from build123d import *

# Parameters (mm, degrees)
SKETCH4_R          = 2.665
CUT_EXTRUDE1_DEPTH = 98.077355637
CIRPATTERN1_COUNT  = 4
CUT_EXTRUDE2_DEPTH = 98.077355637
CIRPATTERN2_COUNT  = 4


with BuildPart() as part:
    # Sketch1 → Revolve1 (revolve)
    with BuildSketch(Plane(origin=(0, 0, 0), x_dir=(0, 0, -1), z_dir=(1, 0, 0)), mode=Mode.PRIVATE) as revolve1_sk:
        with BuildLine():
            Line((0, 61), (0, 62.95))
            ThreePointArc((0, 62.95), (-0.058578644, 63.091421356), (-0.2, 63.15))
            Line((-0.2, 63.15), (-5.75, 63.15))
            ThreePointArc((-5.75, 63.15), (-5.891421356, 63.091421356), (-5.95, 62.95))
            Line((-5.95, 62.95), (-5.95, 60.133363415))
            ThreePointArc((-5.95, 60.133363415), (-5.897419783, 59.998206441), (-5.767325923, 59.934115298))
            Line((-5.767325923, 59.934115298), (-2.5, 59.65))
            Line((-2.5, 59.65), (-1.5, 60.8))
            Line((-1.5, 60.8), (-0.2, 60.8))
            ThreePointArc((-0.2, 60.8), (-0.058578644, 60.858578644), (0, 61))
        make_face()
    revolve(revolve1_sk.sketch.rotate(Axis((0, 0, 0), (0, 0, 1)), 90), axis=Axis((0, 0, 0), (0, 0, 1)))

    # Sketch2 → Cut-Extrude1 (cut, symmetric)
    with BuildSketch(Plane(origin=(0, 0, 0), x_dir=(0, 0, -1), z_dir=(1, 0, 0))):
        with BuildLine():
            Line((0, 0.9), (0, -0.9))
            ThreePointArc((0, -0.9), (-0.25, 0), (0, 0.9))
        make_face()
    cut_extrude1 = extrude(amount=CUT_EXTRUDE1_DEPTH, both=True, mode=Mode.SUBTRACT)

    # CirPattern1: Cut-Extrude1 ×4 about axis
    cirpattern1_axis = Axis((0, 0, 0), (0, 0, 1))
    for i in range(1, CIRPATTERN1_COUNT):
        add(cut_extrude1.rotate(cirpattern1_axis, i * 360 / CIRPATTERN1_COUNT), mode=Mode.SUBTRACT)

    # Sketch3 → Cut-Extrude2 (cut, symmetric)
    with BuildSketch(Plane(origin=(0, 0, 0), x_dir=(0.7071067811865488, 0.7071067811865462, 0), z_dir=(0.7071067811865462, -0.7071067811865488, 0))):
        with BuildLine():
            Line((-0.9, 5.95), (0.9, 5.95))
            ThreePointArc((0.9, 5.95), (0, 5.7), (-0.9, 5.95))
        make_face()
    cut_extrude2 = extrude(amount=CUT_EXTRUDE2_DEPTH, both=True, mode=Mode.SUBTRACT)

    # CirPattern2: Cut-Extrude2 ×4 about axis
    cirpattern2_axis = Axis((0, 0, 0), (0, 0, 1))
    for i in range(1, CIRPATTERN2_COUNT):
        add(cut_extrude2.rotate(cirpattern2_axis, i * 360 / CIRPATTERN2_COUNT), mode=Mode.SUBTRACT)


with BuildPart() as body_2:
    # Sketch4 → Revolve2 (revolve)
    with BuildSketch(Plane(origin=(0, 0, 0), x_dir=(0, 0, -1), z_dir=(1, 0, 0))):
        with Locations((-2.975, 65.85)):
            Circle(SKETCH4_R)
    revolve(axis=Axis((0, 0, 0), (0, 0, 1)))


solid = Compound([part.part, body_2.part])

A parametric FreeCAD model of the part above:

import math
import FreeCAD as App
import Part
import Sketcher

V = App.Vector

doc = App.newDocument("Part")
params = doc.addObject("Spreadsheet::Sheet", "Params")
for row, (alias, value) in enumerate([
    ("sketch1_radius", "0.2 mm"),
    ("sketch1_height", "1.3 mm"),
    ("sketch1_width", "1.95 mm"),
    ("sketch1_height2", "5.55 mm"),
    ("revolution_angle", "360 deg"),
    ("sketch2_width", "1.8 mm"),
    ("pocket1_length", "196.154711 mm"),
    ("sketch3_width", "1.8 mm"),
    ("pocket2_length", "196.154711 mm"),
    ("sketch4_diameter", "5.33 mm"),
    ("revolution2_angle", "360 deg"),
], start=1):
    params.set(f"A{row}", alias)
    params.set(f"B{row}", "=" + value)
    params.setAlias(f"B{row}", alias)

body = doc.addObject("PartDesign::Body", "Body")

# Sketch on YZ plane
sketch1 = doc.addObject("Sketcher::SketchObject", "Sketch")
body.addObject(sketch1)
sketch1.AttachmentSupport = (doc.YZ_Plane, [""])
sketch1.MapMode = "FlatFace"
sketch1.addGeometry(Part.LineSegment(V(61, 0, 0), V(62.95, 0, 0)), False)
sketch1.addGeometry(Part.ArcOfCircle(Part.Circle(V(62.95, 0.2, 0), V(0, 0, 1), 0.2), math.radians(-90), math.radians(0)), False)
sketch1.addGeometry(Part.LineSegment(V(63.15, 0.2, 0), V(63.15, 5.75, 0)), False)
sketch1.addGeometry(Part.ArcOfCircle(Part.Circle(V(62.95, 5.75, 0), V(0, 0, 1), 0.2), math.radians(0), math.radians(90)), False)
sketch1.addGeometry(Part.LineSegment(V(62.95, 5.95, 0), V(60.13, 5.95, 0)), False)
sketch1.addGeometry(Part.ArcOfCircle(Part.Circle(V(60.13, 5.75, 0), V(0, 0, 1), 0.2), math.radians(90), math.radians(175)), False)
sketch1.addGeometry(Part.LineSegment(V(59.93, 5.77, 0), V(59.65, 2.5, 0)), False)
sketch1.addGeometry(Part.LineSegment(V(59.65, 2.5, 0), V(60.8, 1.5, 0)), False)
sketch1.addGeometry(Part.LineSegment(V(60.8, 1.5, 0), V(60.8, 0.2, 0)), False)
sketch1.addGeometry(Part.ArcOfCircle(Part.Circle(V(61, 0.2, 0), V(0, 0, 1), 0.2), math.radians(-180), math.radians(-90)), False)
sketch1.addConstraint(Sketcher.Constraint("Tangent", 0, 2, 1, 1))
sketch1.addConstraint(Sketcher.Constraint("Tangent", 1, 2, 2, 1))
sketch1.addConstraint(Sketcher.Constraint("Tangent", 2, 2, 3, 1))
sketch1.addConstraint(Sketcher.Constraint("Tangent", 3, 2, 4, 1))
sketch1.addConstraint(Sketcher.Constraint("Tangent", 4, 2, 5, 1))
sketch1.addConstraint(Sketcher.Constraint("Tangent", 5, 2, 6, 1))
sketch1.addConstraint(Sketcher.Constraint("Coincident", 6, 2, 7, 1))
sketch1.addConstraint(Sketcher.Constraint("Coincident", 7, 2, 8, 1))
sketch1.addConstraint(Sketcher.Constraint("Tangent", 8, 2, 9, 1))
sketch1.addConstraint(Sketcher.Constraint("Tangent", 9, 2, 0, 1))
sketch1.addConstraint(Sketcher.Constraint("Horizontal", 0))
sketch1.addConstraint(Sketcher.Constraint("Vertical", 2))
sketch1.addConstraint(Sketcher.Constraint("Horizontal", 4))
sketch1.addConstraint(Sketcher.Constraint("Vertical", 8))
sketch1.addConstraint(Sketcher.Constraint("Equal", 1, 3))
sketch1.addConstraint(Sketcher.Constraint("Equal", 3, 5))
sketch1.addConstraint(Sketcher.Constraint("Equal", 5, 9))
sketch1.addConstraint(Sketcher.Constraint("PointOnObject", 0, 2, -1))
sketch1.addConstraint(Sketcher.Constraint("Radius", 1, 0.2))
sketch1.addConstraint(Sketcher.Constraint("DistanceY", 8, 2, 8, 1, 1.3))
sketch1.addConstraint(Sketcher.Constraint("DistanceX", -1, 1, 9, 3, 61.0))
sketch1.addConstraint(Sketcher.Constraint("DistanceY", 7, 2, 6, 2, 1.0))
sketch1.addConstraint(Sketcher.Constraint("DistanceX", 0, 1, 0, 2, 1.95))
sketch1.addConstraint(Sketcher.Constraint("DistanceY", 2, 1, 2, 2, 5.55))
sketch1.addConstraint(Sketcher.Constraint("DistanceX", 6, 2, 1, 3, 3.3))
sketch1.addConstraint(Sketcher.Constraint("DistanceX", 4, 2, 4, 1, 2.816637))
sketch1.setExpression("Constraints[18]", "Params.sketch1_radius")
sketch1.setExpression("Constraints[19]", "Params.sketch1_height")
sketch1.setExpression("Constraints[22]", "Params.sketch1_width")
sketch1.setExpression("Constraints[23]", "Params.sketch1_height2")
revolution = doc.addObject("PartDesign::Revolution", "Revolution")
body.addObject(revolution)
revolution.Profile = sketch1
revolution.ReferenceAxis = (sketch1, ["V_Axis"])
revolution.setExpression("Angle", "Params.revolution_angle")

# Sketch on YZ plane
sketch2 = doc.addObject("Sketcher::SketchObject", "Sketch001")
body.addObject(sketch2)
sketch2.AttachmentSupport = (doc.YZ_Plane, [""])
sketch2.MapMode = "FlatFace"
sketch2.addGeometry(Part.LineSegment(V(-0.9, 0, 0), V(0.9, 0, 0)), False)
sketch2.addGeometry(Part.ArcOfCircle(Part.Circle(V(0, -1.5, 0), V(0, 0, 1), 1.7), math.radians(59), math.radians(121)), False)
sketch2.addConstraint(Sketcher.Constraint("Coincident", 0, 1, 1, 2))
sketch2.addConstraint(Sketcher.Constraint("Coincident", 1, 1, 0, 2))
sketch2.addConstraint(Sketcher.Constraint("Horizontal", 0))
sketch2.addConstraint(Sketcher.Constraint("Symmetric", 0, 1, 1, 1, -1, 1))
sketch2.addConstraint(Sketcher.Constraint("DistanceX", 0, 1, 0, 2, 1.8))
sketch2.addConstraint(Sketcher.Constraint("Radius", 1, 1.745))
sketch2.setExpression("Constraints[4]", "Params.sketch2_width")
pocket1 = doc.addObject("PartDesign::Pocket", "Pocket")
body.addObject(pocket1)
pocket1.Profile = sketch2
pocket1.setExpression("Length", "Params.pocket1_length")
pocket1.Midplane = True
doc.recompute()

polarpattern = doc.addObject("PartDesign::PolarPattern", "PolarPattern")
body.addObject(polarpattern)
polarpattern.Originals = [pocket1]
polarpattern.Axis = (doc.Z_Axis, [""])
polarpattern.Angle = 360
polarpattern.Occurrences = 4
body.Tip = polarpattern

# Sketch on an angled plane
sketch3 = doc.addObject("Sketcher::SketchObject", "Sketch002")
body.addObject(sketch3)
sketch3.Placement = App.Placement(V(0, 0, 0), App.Rotation(V(0.707106781, 0.707106781, 0), V(0, 0, 0.999999999), V(0.707106781, -0.707106781, 0), "ZXY"))
sketch3.addGeometry(Part.LineSegment(V(0.9, 5.9, 0), V(-0.9, 5.9, 0)), False)
sketch3.addGeometry(Part.ArcOfCircle(Part.Circle(V(0, 7.4, 0), V(0, 0, 1), 1.7), math.radians(-121), math.radians(-59)), False)
sketch3.addConstraint(Sketcher.Constraint("Coincident", 0, 1, 1, 2))
sketch3.addConstraint(Sketcher.Constraint("Coincident", 1, 1, 0, 2))
sketch3.addConstraint(Sketcher.Constraint("Horizontal", 0))
sketch3.addConstraint(Sketcher.Constraint("PointOnObject", 1, 3, -2))
sketch3.addConstraint(Sketcher.Constraint("DistanceX", 0, 2, 0, 1, 1.8))
sketch3.addConstraint(Sketcher.Constraint("Radius", 1, 1.745))
sketch3.addConstraint(Sketcher.Constraint("DistanceY", -1, 1, 0, 1, 5.95))
sketch3.setExpression("Constraints[4]", "Params.sketch3_width")
pocket2 = doc.addObject("PartDesign::Pocket", "Pocket001")
body.addObject(pocket2)
pocket2.Profile = sketch3
pocket2.setExpression("Length", "Params.pocket2_length")
pocket2.Midplane = True
doc.recompute()

polarpattern2 = doc.addObject("PartDesign::PolarPattern", "PolarPattern001")
body.addObject(polarpattern2)
polarpattern2.Originals = [pocket2]
polarpattern2.Axis = (doc.Z_Axis, [""])
polarpattern2.Angle = 360
polarpattern2.Occurrences = 4
body.Tip = polarpattern2
body2 = doc.addObject("PartDesign::Body", "Body001")

# Sketch on YZ plane
sketch4 = doc.addObject("Sketcher::SketchObject", "Sketch003")
body2.addObject(sketch4)
sketch4.AttachmentSupport = (doc.getObject("YZ_Plane001"), [""])
sketch4.MapMode = "FlatFace"
sketch4.addGeometry(Part.Circle(V(65.8, 3, 0), V(0, 0, 1), 2.7), False)
sketch4.addConstraint(Sketcher.Constraint("Diameter", 0, 5.33))
sketch4.addConstraint(Sketcher.Constraint("DistanceX", -1, 1, 0, 3, 65.85))
sketch4.addConstraint(Sketcher.Constraint("DistanceY", -1, 1, 0, 3, 2.975))
sketch4.setExpression("Constraints[0]", "Params.sketch4_diameter")
revolution2 = doc.addObject("PartDesign::Revolution", "Revolution001")
body2.addObject(revolution2)
revolution2.Profile = sketch4
revolution2.ReferenceAxis = (sketch4, ["V_Axis"])
revolution2.setExpression("Angle", "Params.revolution2_angle")

doc.recompute()
